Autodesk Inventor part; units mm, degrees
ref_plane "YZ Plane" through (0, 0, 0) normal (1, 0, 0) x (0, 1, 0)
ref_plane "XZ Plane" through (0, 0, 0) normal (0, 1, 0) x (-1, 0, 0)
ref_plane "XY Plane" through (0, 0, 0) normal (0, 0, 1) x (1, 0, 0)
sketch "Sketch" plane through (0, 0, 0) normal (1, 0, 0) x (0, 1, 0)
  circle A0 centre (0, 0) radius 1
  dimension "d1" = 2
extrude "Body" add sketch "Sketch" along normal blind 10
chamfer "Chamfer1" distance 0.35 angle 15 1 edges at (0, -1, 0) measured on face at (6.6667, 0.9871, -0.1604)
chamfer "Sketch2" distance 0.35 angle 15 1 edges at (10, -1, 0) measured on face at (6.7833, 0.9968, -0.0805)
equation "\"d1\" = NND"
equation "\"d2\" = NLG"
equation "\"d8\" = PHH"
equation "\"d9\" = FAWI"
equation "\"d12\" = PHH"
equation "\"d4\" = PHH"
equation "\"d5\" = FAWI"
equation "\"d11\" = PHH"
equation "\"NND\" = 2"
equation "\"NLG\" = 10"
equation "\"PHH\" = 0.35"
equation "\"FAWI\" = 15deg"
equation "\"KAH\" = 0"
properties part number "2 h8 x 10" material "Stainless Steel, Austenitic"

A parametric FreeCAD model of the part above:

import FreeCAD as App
import Part
import Sketcher
from FreeCAD import Vector


def edges_at(feature, points):
    """Names of the edges that pass closest to the given points."""
    edges = feature.Shape.Edges
    near = lambda p: min(range(len(edges)), key=lambda i: edges[i].distToShape(Part.Vertex(*p))[0])
    return sorted({f"Edge{near(p) + 1}" for p in points})

doc = App.newDocument("Part")
body = doc.addObject("PartDesign::Body", "Body")

sketch1 = body.newObject("Sketcher::SketchObject", "Sketch")
sketch1.AttachmentSupport = (doc.getObject("YZ_Plane"), [""])
sketch1.MapMode = "FlatFace"
sketch1.addGeometry(Part.Circle(Vector(0, 0, 0), Vector(0, 0, 1), 1), False)
sketch1.addConstraint(Sketcher.Constraint("Coincident", 0, 3, -1, 1))
sketch1.addConstraint(Sketcher.Constraint("Diameter", 0, 2.0))
pad1 = body.newObject("PartDesign::Pad", "Pad")
pad1.Profile = sketch1
pad1.Length = 10
doc.recompute()

chamfer = body.newObject("PartDesign::Chamfer", "Chamfer")
chamfer.Base = (pad1, edges_at(pad1, [(0, -1, 0)]))
chamfer.ChamferType = "Distance and Angle"
chamfer.Size = 0.35
chamfer.Angle = 15
doc.recompute()

chamfer2 = body.newObject("PartDesign::Chamfer", "Chamfer001")
chamfer2.Base = (chamfer, edges_at(chamfer, [(10, -1, 0)]))
chamfer2.ChamferType = "Distance and Angle"
chamfer2.Size = 0.35
chamfer2.Angle = 15

doc.recompute()
